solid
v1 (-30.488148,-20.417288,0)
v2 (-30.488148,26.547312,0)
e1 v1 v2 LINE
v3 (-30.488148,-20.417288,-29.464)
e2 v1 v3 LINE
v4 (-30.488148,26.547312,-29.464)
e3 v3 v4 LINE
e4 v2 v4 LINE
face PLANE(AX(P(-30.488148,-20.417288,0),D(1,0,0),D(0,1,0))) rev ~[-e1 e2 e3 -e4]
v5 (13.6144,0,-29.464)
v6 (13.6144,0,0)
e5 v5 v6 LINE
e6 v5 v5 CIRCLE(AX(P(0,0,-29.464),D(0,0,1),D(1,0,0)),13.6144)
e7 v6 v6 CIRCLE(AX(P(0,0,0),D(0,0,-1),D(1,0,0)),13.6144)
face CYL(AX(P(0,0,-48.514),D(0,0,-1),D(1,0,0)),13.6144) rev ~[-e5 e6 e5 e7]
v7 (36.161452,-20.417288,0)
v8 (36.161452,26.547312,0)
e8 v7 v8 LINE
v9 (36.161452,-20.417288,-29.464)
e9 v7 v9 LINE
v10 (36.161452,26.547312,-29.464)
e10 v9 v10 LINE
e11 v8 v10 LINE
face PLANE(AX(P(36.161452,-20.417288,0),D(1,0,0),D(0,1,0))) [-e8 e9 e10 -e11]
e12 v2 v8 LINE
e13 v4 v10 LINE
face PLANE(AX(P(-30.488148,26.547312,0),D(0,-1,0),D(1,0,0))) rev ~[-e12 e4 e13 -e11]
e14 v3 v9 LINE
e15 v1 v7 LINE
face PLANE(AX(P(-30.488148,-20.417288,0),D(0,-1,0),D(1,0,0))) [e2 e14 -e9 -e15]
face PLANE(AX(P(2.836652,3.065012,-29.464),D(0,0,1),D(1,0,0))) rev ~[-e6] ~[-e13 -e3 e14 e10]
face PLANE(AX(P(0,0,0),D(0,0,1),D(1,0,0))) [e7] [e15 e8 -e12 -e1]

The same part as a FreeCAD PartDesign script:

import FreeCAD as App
import Part
import Sketcher

V = App.Vector
Q = App.Units.Quantity

doc = App.newDocument("Part")
body = doc.addObject("PartDesign::Body", "Body")

sketch1 = body.newObject("Sketcher::SketchObject", "Sketch")
sketch1.AttachmentSupport = (doc.getObject("XY_Plane"), [""])
sketch1.MapMode = "FlatFace"
sketch1.addGeometry([
    Part.LineSegment(V(-30.488148, 26.547312, 0), V(-30.488148, -20.417288, 0)),
    Part.LineSegment(V(-30.488148, -20.417288, 0), V(36.161452, -20.417288, 0)),
    Part.LineSegment(V(36.161452, -20.417288, 0), V(36.161452, 26.547312, 0)),
    Part.LineSegment(V(36.161452, 26.547312, 0), V(-30.488148, 26.547312, 0)),
], False)
sketch1.addConstraint([
    Sketcher.Constraint("Coincident", 0, 2, 1, 1),
    Sketcher.Constraint("Coincident", 1, 2, 2, 1),
    Sketcher.Constraint("Coincident", 2, 2, 3, 1),
    Sketcher.Constraint("Coincident", 3, 2, 0, 1),
    Sketcher.Constraint("Vertical", 0),
    Sketcher.Constraint("Horizontal", 1),
    Sketcher.Constraint("Vertical", 2),
    Sketcher.Constraint("Horizontal", 3),
    Sketcher.Constraint("DistanceX", 1, 1, 1, 2, Q("2.624 in")),
    Sketcher.Constraint("DistanceY", 0, 2, 0, 1, Q("1.849 in")),
    Sketcher.Constraint("DistanceX", -1, 1, 1, 2, 36.161452),
    Sketcher.Constraint("DistanceY", 0, 2, -1, 1, 20.417288),
])
pad1 = body.newObject("PartDesign::Pad", "Pad")
pad1.Profile = sketch1
pad1.Length = Q("1.16 in")
pad1.Reversed = True

sketch2 = body.newObject("Sketcher::SketchObject", "Sketch001")
sketch2.AttachmentSupport = (doc.getObject("XY_Plane"), [""])
sketch2.MapMode = "FlatFace"
sketch2.addGeometry(Part.Circle(V(0, 0, 0), V(0, 0, 1), 13.6144), False)
sketch2.addConstraint([
    Sketcher.Constraint("Coincident", 0, 3, -1, 1),
    Sketcher.Constraint("Diameter", 0, Q("1.072 in")),
])
pad2 = body.newObject("PartDesign::Pad", "Pad001")
pad2.Profile = sketch2
pad2.Length = Q("1.91 in")
pad2.Reversed = True

sketch3 = body.newObject("Sketcher::SketchObject", "Sketch002")
sketch3.AttachmentSupport = (doc.getObject("XY_Plane"), [""])
sketch3.MapMode = "FlatFace"
sketch3.AttachmentOffset = App.Placement(V(0, 0, -1.91 * 25.4), App.Rotation())
sketch3.addGeometry(Part.Circle(V(0, 0, 0), V(0, 0, 1), 13.6144), False)
sketch3.addConstraint([
    Sketcher.Constraint("Coincident", 0, 3, -1, 1),
    Sketcher.Constraint("Diameter", 0, Q("1.072 in")),
])
pocket1 = body.newObject("PartDesign::Pocket", "Pocket")
pocket1.Profile = sketch3
pocket1.Length = Q("3.34 in")
pocket1.Reversed = True

doc.recompute()
